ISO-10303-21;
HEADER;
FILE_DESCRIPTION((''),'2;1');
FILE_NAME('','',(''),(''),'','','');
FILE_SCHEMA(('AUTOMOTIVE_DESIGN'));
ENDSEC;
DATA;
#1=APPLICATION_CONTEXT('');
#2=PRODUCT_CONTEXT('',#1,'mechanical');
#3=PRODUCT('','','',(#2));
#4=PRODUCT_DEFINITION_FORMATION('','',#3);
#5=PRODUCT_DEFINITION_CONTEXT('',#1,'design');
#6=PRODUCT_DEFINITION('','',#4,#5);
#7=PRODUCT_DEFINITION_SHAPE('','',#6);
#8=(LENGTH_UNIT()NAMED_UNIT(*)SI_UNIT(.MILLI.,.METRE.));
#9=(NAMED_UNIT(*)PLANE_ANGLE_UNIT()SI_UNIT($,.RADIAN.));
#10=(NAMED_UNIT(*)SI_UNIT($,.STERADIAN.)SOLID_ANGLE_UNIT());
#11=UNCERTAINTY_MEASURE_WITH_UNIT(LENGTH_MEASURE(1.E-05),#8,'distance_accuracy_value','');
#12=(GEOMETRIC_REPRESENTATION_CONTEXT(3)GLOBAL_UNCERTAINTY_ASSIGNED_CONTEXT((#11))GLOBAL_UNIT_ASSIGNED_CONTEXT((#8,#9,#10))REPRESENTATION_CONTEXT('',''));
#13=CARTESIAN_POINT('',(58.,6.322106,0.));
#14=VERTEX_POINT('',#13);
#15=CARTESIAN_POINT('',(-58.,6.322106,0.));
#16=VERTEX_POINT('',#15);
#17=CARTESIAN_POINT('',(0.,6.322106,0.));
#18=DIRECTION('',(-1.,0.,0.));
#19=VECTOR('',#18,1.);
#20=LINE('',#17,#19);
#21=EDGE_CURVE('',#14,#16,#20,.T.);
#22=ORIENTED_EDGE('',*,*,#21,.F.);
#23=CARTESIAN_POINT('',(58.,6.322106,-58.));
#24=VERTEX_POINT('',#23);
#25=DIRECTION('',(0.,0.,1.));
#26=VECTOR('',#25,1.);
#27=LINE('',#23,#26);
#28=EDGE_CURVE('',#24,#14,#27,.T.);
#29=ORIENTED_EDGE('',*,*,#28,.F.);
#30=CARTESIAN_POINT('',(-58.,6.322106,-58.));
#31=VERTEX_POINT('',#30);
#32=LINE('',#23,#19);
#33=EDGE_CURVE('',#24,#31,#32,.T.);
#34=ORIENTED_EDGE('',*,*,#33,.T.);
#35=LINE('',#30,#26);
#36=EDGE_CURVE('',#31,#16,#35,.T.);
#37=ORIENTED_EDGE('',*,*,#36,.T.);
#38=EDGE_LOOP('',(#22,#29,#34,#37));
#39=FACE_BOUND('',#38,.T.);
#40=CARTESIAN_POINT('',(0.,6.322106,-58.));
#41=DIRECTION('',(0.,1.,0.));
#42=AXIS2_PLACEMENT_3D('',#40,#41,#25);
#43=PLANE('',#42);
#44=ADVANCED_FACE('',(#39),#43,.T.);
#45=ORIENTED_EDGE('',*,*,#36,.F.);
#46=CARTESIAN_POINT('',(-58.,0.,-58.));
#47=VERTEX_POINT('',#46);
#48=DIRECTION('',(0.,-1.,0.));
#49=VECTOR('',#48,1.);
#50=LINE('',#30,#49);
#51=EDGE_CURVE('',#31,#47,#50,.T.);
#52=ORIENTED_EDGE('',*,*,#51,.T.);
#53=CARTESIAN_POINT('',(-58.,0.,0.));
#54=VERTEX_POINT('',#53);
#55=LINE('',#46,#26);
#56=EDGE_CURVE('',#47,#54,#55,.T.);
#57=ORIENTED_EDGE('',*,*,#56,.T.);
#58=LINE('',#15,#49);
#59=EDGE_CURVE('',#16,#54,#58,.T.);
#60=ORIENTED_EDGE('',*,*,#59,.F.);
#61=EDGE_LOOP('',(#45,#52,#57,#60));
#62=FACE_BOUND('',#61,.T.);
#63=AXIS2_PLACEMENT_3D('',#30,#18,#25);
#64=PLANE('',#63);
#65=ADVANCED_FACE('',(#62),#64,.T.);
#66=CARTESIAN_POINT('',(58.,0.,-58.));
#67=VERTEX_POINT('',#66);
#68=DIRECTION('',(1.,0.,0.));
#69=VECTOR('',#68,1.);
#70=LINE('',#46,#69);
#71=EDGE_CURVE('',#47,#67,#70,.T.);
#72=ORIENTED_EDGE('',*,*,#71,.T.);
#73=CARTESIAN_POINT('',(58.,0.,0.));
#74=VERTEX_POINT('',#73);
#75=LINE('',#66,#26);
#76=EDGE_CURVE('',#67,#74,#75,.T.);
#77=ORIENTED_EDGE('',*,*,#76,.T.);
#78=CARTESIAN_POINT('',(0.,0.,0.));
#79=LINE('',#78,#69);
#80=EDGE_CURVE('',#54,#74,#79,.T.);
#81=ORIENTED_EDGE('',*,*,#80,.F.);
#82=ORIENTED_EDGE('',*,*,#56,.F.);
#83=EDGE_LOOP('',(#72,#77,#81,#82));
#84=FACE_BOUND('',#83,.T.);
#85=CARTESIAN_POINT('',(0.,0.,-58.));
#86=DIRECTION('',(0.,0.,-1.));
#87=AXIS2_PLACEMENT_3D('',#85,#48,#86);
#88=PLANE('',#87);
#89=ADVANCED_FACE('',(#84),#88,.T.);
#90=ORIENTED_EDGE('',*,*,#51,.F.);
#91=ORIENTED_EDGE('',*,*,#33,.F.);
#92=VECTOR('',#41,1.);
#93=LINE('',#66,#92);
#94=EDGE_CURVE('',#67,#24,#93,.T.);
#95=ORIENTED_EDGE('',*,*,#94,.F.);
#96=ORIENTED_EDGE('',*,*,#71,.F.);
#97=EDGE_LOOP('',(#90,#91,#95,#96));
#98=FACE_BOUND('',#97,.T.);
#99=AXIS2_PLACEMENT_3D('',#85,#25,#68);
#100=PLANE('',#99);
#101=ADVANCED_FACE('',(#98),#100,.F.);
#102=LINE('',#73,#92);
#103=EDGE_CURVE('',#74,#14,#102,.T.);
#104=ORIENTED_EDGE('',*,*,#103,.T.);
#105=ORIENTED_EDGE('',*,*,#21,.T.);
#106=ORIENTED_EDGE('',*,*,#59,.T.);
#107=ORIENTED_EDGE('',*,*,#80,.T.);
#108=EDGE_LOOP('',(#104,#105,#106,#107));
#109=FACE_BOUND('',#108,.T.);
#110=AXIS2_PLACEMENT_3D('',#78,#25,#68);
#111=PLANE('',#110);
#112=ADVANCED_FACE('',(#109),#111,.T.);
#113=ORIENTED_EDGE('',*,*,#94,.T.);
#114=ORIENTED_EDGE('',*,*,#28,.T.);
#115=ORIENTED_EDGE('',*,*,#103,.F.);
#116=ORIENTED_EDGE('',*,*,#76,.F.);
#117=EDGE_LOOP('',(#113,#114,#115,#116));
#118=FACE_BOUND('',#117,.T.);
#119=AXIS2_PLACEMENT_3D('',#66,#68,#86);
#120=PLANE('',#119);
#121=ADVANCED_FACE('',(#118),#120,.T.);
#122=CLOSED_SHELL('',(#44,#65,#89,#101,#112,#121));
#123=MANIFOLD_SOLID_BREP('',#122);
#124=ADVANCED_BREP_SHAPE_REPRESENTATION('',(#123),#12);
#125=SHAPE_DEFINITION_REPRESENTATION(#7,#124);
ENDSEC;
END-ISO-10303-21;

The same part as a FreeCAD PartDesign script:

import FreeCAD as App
import Part
import Sketcher
from FreeCAD import Vector


def add_polygon(sketch, points):
    """Adds a closed chain of lines whose ends are joined by coincident constraints."""
    first, n = sketch.GeometryCount, len(points)
    for a, b in zip(points, points[1:] + points[:1]):
        sketch.addGeometry(Part.LineSegment(App.Vector(*a, 0), App.Vector(*b, 0)), False)
    for i in range(n):
        sketch.addConstraint(Sketcher.Constraint("Coincident", first + i, 2, first + (i + 1) % n, 1))

doc = App.newDocument("Part")
body = doc.addObject("PartDesign::Body", "Body")

sketch1 = doc.addObject("Sketcher::SketchObject", "Sketch")
body.addObject(sketch1)
sketch1.AttachmentSupport = (doc.XY_Plane, [""])
sketch1.MapMode = "FlatFace"
add_polygon(sketch1, [(-58, 0), (58, 0), (58, 6.322106), (-58, 6.322106)])
sketch1.addConstraint(Sketcher.Constraint("Horizontal", 0))
sketch1.addConstraint(Sketcher.Constraint("Vertical", 1))
sketch1.addConstraint(Sketcher.Constraint("Horizontal", 2))
sketch1.addConstraint(Sketcher.Constraint("Vertical", 3))
sketch1.addConstraint(Sketcher.Constraint("Symmetric", 0, 2, 3, 2, -1, 1))
sketch1.addConstraint(Sketcher.Constraint("DistanceX", 0, 1, 0, 2, 116.0))
sketch1.addConstraint(Sketcher.Constraint("DistanceY", 1, 1, 1, 2, 6.322106))
pad1 = doc.addObject("PartDesign::Pad", "Pad")
body.addObject(pad1)
pad1.Profile = sketch1
pad1.Length = 58
pad1.Reversed = True

doc.recompute()
